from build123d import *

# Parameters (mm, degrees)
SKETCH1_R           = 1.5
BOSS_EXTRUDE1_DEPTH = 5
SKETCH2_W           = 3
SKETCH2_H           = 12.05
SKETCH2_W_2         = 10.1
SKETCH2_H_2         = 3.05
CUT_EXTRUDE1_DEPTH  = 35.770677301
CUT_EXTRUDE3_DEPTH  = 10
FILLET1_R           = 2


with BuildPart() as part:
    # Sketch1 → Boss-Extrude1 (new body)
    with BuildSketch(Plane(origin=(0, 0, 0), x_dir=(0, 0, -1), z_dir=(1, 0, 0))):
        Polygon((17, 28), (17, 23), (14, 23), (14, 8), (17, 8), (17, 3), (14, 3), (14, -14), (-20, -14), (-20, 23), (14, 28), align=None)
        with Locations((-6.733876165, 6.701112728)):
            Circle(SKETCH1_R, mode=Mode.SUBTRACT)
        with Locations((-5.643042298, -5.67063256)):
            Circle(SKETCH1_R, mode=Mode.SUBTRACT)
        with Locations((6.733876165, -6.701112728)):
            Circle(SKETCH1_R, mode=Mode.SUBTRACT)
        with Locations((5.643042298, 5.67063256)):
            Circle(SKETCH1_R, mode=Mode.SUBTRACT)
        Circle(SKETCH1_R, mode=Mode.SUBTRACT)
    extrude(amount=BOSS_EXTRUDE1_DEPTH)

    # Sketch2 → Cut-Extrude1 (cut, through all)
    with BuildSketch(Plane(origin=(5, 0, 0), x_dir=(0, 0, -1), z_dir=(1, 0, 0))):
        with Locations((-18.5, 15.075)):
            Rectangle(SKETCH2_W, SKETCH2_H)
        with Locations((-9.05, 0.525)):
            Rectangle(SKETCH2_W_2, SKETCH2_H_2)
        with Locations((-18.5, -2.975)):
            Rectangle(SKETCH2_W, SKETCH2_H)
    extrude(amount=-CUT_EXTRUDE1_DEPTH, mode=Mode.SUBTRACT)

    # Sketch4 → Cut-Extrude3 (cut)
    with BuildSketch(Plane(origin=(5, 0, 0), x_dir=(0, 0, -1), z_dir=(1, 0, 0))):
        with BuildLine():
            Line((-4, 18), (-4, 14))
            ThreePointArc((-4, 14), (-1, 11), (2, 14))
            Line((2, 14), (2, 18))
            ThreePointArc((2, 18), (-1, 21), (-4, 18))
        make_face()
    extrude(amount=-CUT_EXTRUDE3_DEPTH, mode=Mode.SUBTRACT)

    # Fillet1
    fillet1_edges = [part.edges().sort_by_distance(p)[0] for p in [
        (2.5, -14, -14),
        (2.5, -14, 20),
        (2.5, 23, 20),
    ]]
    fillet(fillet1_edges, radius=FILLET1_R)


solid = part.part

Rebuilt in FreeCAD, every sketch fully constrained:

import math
import FreeCAD as App
import Part
import Sketcher
Q = App.Units.Quantity


def edges_at(feature, points):
    """Names of the edges that pass closest to the given points."""
    edges = feature.Shape.Edges
    near = lambda p: min(range(len(edges)), key=lambda i: edges[i].distToShape(Part.Vertex(*p))[0])
    return sorted({f"Edge{near(p) + 1}" for p in points})


def add_polygon(sketch, points):
    """Adds a closed chain of lines whose ends are joined by coincident constraints."""
    first, n = sketch.GeometryCount, len(points)
    for a, b in zip(points, points[1:] + points[:1]):
        sketch.addGeometry(Part.LineSegment(App.Vector(*a, 0), App.Vector(*b, 0)), False)
    for i in range(n):
        sketch.addConstraint(Sketcher.Constraint("Coincident", first + i, 2, first + (i + 1) % n, 1))

doc = App.newDocument("Part")
body = doc.addObject("PartDesign::Body", "Body")

# Sketch on YZ plane
sketch1 = doc.addObject("Sketcher::SketchObject", "Sketch")
body.addObject(sketch1)
sketch1.AttachmentSupport = (doc.YZ_Plane, [""])
sketch1.MapMode = "FlatFace"
add_polygon(sketch1, [(23, -17), (28, -17), (28, -14), (23, 20), (-14, 20), (-14, -14), (3, -14), (3, -17), (8, -17), (8, -14), (23, -14)])  # lines 0-10
sketch1.addGeometry(Part.Circle(App.Vector(-6.7, -6.7, 0), App.Vector(0, 0, 1), 1.5), False)  # 11
sketch1.addGeometry(Part.Circle(App.Vector(-5.7, 5.6, 0), App.Vector(0, 0, 1), 1.5), False)  # 12
sketch1.addGeometry(Part.Circle(App.Vector(5.7, -5.6, 0), App.Vector(0, 0, 1), 1.5), False)  # 13
sketch1.addGeometry(Part.Circle(App.Vector(0, 0, 0), App.Vector(0, 0, 1), 1.5), False)  # 14
sketch1.addGeometry(Part.Circle(App.Vector(6.7, 6.7, 0), App.Vector(0, 0, 1), 1.5), False)  # 15
sketch1.addConstraint(Sketcher.Constraint("Horizontal", 0))
sketch1.addConstraint(Sketcher.Constraint("Vertical", 1))
sketch1.addConstraint(Sketcher.Constraint("Horizontal", 3))
sketch1.addConstraint(Sketcher.Constraint("Vertical", 4))
sketch1.addConstraint(Sketcher.Constraint("Horizontal", 5))
sketch1.addConstraint(Sketcher.Constraint("Vertical", 6))
sketch1.addConstraint(Sketcher.Constraint("Horizontal", 7))
sketch1.addConstraint(Sketcher.Constraint("Vertical", 8))
sketch1.addConstraint(Sketcher.Constraint("Horizontal", 9))
sketch1.addConstraint(Sketcher.Constraint("Vertical", 10))
sketch1.addConstraint(Sketcher.Constraint("Coincident", 14, 3, -1, 1))
sketch1.addConstraint(Sketcher.Constraint("Equal", 11, 12))
sketch1.addConstraint(Sketcher.Constraint("Equal", 12, 13))
sketch1.addConstraint(Sketcher.Constraint("Equal", 13, 14))
sketch1.addConstraint(Sketcher.Constraint("Equal", 14, 15))
sketch1.addConstraint(Sketcher.Constraint("Symmetric", 12, 3, 13, 3, -1, 1))
sketch1.addConstraint(Sketcher.Constraint("Symmetric", 11, 3, 15, 3, -1, 1))
sketch1.addConstraint(Sketcher.Constraint("Horizontal", 1, 2, 4, 2))
sketch1.addConstraint(Sketcher.Constraint("Horizontal", 0, 2, 6, 2))
sketch1.addConstraint(Sketcher.Constraint("Horizontal", 5, 2, 8, 2))
sketch1.addConstraint(Sketcher.Constraint("Vertical", 2, 2, 9, 2))
sketch1.addConstraint(Sketcher.Constraint("Equal", 0, 7))
sketch1.addConstraint(Sketcher.Constraint("Diameter", 11, Q("3 mm")))
sketch1.addConstraint(Sketcher.Constraint("DistanceX", 0, 1, 0, 2, Q("5 mm")))
sketch1.addConstraint(Sketcher.Constraint("DistanceX", 3, 2, 3, 1, Q("37 mm")))
sketch1.addConstraint(Sketcher.Constraint("DistanceX", 5, 1, 5, 2, Q("17 mm")))
sketch1.addConstraint(Sketcher.Constraint("DistanceY", 1, 1, 1, 2, Q("3 mm")))
sketch1.addConstraint(Sketcher.Constraint("DistanceY", 4, 2, 4, 1, Q("34 mm")))
sketch1.addConstraint(Sketcher.Constraint("DistanceX", -1, 1, 0, 2, Q("28 mm")))
sketch1.addConstraint(Sketcher.Constraint("DistanceY", 0, 2, -1, 1, Q("17 mm")))
sketch1.addConstraint(Sketcher.Constraint("DistanceX", 11, 3, 12, 3, Q("1.03048 mm")))
sketch1.addConstraint(Sketcher.Constraint("DistanceY", 11, 3, 12, 3, Q("12.376918 mm")))
sketch1.addConstraint(Sketcher.Constraint("DistanceX", 11, 3, -1, 1, Q("6.701113 mm")))
sketch1.addConstraint(Sketcher.Constraint("DistanceY", 11, 3, -1, 1, Q("6.733876 mm")))
pad1 = doc.addObject("PartDesign::Pad", "Pad")
body.addObject(pad1)
pad1.Profile = sketch1
pad1.Length = 5

# Sketch on YZ plane
sketch2 = doc.addObject("Sketcher::SketchObject", "Sketch001")
body.addObject(sketch2)
sketch2.AttachmentSupport = (doc.YZ_Plane, [""])
sketch2.MapMode = "FlatFace"
sketch2.AttachmentOffset = App.Placement(App.Vector(0, 0, 5), App.Rotation())
add_polygon(sketch2, [(21.1, 20), (9.1, 20), (9.1, 17), (21.1, 17)])  # lines 0-3
add_polygon(sketch2, [(2, 14.1), (-1, 14.1), (-1, 4), (2, 4)])  # lines 4-7
add_polygon(sketch2, [(3, 20), (-9, 20), (-9, 17), (3, 17)])  # lines 8-11
sketch2.addConstraint(Sketcher.Constraint("Horizontal", 0))
sketch2.addConstraint(Sketcher.Constraint("Vertical", 1))
sketch2.addConstraint(Sketcher.Constraint("Horizontal", 2))
sketch2.addConstraint(Sketcher.Constraint("Vertical", 3))
sketch2.addConstraint(Sketcher.Constraint("Horizontal", 4))
sketch2.addConstraint(Sketcher.Constraint("Vertical", 5))
sketch2.addConstraint(Sketcher.Constraint("Horizontal", 6))
sketch2.addConstraint(Sketcher.Constraint("Vertical", 7))
sketch2.addConstraint(Sketcher.Constraint("Horizontal", 8))
sketch2.addConstraint(Sketcher.Constraint("Vertical", 9))
sketch2.addConstraint(Sketcher.Constraint("Horizontal", 10))
sketch2.addConstraint(Sketcher.Constraint("Vertical", 11))
sketch2.addConstraint(Sketcher.Constraint("Horizontal", 3, 2, 8, 2))
sketch2.addConstraint(Sketcher.Constraint("Horizontal", 2, 2, 9, 2))
sketch2.addConstraint(Sketcher.Constraint("Equal", 2, 8))
sketch2.addConstraint(Sketcher.Constraint("DistanceY", 1, 2, 1, 1, Q("3 mm")))
sketch2.addConstraint(Sketcher.Constraint("DistanceY", 5, 2, 5, 1, Q("10.1 mm")))
sketch2.addConstraint(Sketcher.Constraint("DistanceY", -1, 1, 0, 2, Q("20 mm")))
sketch2.addConstraint(Sketcher.Constraint("DistanceX", 4, 2, -1, 1, Q("1 mm")))
sketch2.addConstraint(Sketcher.Constraint("DistanceY", -1, 1, 5, 2, Q("4 mm")))
sketch2.addConstraint(Sketcher.Constraint("DistanceX", 8, 2, -1, 1, Q("9 mm")))
sketch2.addConstraint(Sketcher.Constraint("DistanceX", 6, 2, 1, 2, Q("7 mm")))
sketch2.addConstraint(Sketcher.Constraint("DistanceX", 7, 2, 10, 2, Q("1 mm")))
sketch2.addConstraint(Sketcher.Constraint("DistanceX", 0, 2, 0, 1, Q("12.05 mm")))
pocket1 = doc.addObject("PartDesign::Pocket", "Pocket")
body.addObject(pocket1)
pocket1.Profile = sketch2
pocket1.Type = "ThroughAll"

# Sketch on YZ plane
sketch3 = doc.addObject("Sketcher::SketchObject", "Sketch002")
body.addObject(sketch3)
sketch3.AttachmentSupport = (doc.YZ_Plane, [""])
sketch3.MapMode = "FlatFace"
sketch3.AttachmentOffset = App.Placement(App.Vector(0, 0, 5), App.Rotation())
sketch3.addGeometry(Part.LineSegment(App.Vector(18, 4, 0), App.Vector(14, 4, 0)), False)
sketch3.addGeometry(Part.ArcOfCircle(Part.Circle(App.Vector(14, 1, 0), App.Vector(0, 0, 1), 3), math.radians(90), math.radians(270)), False)
sketch3.addGeometry(Part.LineSegment(App.Vector(14, -2, 0), App.Vector(18, -2, 0)), False)
sketch3.addGeometry(Part.ArcOfCircle(Part.Circle(App.Vector(18, 1, 0), App.Vector(0, 0, 1), 3), math.radians(-90), math.radians(90)), False)
sketch3.addConstraint(Sketcher.Constraint("Tangent", 0, 2, 1, 1))
sketch3.addConstraint(Sketcher.Constraint("Tangent", 1, 2, 2, 1))
sketch3.addConstraint(Sketcher.Constraint("Tangent", 2, 2, 3, 1))
sketch3.addConstraint(Sketcher.Constraint("Tangent", 3, 2, 0, 1))
sketch3.addConstraint(Sketcher.Constraint("Horizontal", 0))
sketch3.addConstraint(Sketcher.Constraint("Horizontal", 2))
sketch3.addConstraint(Sketcher.Constraint("Radius", 1, Q("3 mm")))
sketch3.addConstraint(Sketcher.Constraint("DistanceX", 0, 2, 0, 1, Q("4 mm")))
sketch3.addConstraint(Sketcher.Constraint("DistanceX", -1, 1, 1, 3, Q("14 mm")))
sketch3.addConstraint(Sketcher.Constraint("DistanceY", -1, 1, 1, 3, Q("1 mm")))
pocket2 = doc.addObject("PartDesign::Pocket", "Pocket001")
body.addObject(pocket2)
pocket2.Profile = sketch3
pocket2.Length = 10
doc.recompute()

fillet = doc.addObject("PartDesign::Fillet", "Fillet")
body.addObject(fillet)
fillet.Base = (pocket2, edges_at(pocket2, [(2.5, -14, -14), (2.5, -14, 20), (2.5, 23, 20)]))
fillet.Radius = 2

doc.recompute()
